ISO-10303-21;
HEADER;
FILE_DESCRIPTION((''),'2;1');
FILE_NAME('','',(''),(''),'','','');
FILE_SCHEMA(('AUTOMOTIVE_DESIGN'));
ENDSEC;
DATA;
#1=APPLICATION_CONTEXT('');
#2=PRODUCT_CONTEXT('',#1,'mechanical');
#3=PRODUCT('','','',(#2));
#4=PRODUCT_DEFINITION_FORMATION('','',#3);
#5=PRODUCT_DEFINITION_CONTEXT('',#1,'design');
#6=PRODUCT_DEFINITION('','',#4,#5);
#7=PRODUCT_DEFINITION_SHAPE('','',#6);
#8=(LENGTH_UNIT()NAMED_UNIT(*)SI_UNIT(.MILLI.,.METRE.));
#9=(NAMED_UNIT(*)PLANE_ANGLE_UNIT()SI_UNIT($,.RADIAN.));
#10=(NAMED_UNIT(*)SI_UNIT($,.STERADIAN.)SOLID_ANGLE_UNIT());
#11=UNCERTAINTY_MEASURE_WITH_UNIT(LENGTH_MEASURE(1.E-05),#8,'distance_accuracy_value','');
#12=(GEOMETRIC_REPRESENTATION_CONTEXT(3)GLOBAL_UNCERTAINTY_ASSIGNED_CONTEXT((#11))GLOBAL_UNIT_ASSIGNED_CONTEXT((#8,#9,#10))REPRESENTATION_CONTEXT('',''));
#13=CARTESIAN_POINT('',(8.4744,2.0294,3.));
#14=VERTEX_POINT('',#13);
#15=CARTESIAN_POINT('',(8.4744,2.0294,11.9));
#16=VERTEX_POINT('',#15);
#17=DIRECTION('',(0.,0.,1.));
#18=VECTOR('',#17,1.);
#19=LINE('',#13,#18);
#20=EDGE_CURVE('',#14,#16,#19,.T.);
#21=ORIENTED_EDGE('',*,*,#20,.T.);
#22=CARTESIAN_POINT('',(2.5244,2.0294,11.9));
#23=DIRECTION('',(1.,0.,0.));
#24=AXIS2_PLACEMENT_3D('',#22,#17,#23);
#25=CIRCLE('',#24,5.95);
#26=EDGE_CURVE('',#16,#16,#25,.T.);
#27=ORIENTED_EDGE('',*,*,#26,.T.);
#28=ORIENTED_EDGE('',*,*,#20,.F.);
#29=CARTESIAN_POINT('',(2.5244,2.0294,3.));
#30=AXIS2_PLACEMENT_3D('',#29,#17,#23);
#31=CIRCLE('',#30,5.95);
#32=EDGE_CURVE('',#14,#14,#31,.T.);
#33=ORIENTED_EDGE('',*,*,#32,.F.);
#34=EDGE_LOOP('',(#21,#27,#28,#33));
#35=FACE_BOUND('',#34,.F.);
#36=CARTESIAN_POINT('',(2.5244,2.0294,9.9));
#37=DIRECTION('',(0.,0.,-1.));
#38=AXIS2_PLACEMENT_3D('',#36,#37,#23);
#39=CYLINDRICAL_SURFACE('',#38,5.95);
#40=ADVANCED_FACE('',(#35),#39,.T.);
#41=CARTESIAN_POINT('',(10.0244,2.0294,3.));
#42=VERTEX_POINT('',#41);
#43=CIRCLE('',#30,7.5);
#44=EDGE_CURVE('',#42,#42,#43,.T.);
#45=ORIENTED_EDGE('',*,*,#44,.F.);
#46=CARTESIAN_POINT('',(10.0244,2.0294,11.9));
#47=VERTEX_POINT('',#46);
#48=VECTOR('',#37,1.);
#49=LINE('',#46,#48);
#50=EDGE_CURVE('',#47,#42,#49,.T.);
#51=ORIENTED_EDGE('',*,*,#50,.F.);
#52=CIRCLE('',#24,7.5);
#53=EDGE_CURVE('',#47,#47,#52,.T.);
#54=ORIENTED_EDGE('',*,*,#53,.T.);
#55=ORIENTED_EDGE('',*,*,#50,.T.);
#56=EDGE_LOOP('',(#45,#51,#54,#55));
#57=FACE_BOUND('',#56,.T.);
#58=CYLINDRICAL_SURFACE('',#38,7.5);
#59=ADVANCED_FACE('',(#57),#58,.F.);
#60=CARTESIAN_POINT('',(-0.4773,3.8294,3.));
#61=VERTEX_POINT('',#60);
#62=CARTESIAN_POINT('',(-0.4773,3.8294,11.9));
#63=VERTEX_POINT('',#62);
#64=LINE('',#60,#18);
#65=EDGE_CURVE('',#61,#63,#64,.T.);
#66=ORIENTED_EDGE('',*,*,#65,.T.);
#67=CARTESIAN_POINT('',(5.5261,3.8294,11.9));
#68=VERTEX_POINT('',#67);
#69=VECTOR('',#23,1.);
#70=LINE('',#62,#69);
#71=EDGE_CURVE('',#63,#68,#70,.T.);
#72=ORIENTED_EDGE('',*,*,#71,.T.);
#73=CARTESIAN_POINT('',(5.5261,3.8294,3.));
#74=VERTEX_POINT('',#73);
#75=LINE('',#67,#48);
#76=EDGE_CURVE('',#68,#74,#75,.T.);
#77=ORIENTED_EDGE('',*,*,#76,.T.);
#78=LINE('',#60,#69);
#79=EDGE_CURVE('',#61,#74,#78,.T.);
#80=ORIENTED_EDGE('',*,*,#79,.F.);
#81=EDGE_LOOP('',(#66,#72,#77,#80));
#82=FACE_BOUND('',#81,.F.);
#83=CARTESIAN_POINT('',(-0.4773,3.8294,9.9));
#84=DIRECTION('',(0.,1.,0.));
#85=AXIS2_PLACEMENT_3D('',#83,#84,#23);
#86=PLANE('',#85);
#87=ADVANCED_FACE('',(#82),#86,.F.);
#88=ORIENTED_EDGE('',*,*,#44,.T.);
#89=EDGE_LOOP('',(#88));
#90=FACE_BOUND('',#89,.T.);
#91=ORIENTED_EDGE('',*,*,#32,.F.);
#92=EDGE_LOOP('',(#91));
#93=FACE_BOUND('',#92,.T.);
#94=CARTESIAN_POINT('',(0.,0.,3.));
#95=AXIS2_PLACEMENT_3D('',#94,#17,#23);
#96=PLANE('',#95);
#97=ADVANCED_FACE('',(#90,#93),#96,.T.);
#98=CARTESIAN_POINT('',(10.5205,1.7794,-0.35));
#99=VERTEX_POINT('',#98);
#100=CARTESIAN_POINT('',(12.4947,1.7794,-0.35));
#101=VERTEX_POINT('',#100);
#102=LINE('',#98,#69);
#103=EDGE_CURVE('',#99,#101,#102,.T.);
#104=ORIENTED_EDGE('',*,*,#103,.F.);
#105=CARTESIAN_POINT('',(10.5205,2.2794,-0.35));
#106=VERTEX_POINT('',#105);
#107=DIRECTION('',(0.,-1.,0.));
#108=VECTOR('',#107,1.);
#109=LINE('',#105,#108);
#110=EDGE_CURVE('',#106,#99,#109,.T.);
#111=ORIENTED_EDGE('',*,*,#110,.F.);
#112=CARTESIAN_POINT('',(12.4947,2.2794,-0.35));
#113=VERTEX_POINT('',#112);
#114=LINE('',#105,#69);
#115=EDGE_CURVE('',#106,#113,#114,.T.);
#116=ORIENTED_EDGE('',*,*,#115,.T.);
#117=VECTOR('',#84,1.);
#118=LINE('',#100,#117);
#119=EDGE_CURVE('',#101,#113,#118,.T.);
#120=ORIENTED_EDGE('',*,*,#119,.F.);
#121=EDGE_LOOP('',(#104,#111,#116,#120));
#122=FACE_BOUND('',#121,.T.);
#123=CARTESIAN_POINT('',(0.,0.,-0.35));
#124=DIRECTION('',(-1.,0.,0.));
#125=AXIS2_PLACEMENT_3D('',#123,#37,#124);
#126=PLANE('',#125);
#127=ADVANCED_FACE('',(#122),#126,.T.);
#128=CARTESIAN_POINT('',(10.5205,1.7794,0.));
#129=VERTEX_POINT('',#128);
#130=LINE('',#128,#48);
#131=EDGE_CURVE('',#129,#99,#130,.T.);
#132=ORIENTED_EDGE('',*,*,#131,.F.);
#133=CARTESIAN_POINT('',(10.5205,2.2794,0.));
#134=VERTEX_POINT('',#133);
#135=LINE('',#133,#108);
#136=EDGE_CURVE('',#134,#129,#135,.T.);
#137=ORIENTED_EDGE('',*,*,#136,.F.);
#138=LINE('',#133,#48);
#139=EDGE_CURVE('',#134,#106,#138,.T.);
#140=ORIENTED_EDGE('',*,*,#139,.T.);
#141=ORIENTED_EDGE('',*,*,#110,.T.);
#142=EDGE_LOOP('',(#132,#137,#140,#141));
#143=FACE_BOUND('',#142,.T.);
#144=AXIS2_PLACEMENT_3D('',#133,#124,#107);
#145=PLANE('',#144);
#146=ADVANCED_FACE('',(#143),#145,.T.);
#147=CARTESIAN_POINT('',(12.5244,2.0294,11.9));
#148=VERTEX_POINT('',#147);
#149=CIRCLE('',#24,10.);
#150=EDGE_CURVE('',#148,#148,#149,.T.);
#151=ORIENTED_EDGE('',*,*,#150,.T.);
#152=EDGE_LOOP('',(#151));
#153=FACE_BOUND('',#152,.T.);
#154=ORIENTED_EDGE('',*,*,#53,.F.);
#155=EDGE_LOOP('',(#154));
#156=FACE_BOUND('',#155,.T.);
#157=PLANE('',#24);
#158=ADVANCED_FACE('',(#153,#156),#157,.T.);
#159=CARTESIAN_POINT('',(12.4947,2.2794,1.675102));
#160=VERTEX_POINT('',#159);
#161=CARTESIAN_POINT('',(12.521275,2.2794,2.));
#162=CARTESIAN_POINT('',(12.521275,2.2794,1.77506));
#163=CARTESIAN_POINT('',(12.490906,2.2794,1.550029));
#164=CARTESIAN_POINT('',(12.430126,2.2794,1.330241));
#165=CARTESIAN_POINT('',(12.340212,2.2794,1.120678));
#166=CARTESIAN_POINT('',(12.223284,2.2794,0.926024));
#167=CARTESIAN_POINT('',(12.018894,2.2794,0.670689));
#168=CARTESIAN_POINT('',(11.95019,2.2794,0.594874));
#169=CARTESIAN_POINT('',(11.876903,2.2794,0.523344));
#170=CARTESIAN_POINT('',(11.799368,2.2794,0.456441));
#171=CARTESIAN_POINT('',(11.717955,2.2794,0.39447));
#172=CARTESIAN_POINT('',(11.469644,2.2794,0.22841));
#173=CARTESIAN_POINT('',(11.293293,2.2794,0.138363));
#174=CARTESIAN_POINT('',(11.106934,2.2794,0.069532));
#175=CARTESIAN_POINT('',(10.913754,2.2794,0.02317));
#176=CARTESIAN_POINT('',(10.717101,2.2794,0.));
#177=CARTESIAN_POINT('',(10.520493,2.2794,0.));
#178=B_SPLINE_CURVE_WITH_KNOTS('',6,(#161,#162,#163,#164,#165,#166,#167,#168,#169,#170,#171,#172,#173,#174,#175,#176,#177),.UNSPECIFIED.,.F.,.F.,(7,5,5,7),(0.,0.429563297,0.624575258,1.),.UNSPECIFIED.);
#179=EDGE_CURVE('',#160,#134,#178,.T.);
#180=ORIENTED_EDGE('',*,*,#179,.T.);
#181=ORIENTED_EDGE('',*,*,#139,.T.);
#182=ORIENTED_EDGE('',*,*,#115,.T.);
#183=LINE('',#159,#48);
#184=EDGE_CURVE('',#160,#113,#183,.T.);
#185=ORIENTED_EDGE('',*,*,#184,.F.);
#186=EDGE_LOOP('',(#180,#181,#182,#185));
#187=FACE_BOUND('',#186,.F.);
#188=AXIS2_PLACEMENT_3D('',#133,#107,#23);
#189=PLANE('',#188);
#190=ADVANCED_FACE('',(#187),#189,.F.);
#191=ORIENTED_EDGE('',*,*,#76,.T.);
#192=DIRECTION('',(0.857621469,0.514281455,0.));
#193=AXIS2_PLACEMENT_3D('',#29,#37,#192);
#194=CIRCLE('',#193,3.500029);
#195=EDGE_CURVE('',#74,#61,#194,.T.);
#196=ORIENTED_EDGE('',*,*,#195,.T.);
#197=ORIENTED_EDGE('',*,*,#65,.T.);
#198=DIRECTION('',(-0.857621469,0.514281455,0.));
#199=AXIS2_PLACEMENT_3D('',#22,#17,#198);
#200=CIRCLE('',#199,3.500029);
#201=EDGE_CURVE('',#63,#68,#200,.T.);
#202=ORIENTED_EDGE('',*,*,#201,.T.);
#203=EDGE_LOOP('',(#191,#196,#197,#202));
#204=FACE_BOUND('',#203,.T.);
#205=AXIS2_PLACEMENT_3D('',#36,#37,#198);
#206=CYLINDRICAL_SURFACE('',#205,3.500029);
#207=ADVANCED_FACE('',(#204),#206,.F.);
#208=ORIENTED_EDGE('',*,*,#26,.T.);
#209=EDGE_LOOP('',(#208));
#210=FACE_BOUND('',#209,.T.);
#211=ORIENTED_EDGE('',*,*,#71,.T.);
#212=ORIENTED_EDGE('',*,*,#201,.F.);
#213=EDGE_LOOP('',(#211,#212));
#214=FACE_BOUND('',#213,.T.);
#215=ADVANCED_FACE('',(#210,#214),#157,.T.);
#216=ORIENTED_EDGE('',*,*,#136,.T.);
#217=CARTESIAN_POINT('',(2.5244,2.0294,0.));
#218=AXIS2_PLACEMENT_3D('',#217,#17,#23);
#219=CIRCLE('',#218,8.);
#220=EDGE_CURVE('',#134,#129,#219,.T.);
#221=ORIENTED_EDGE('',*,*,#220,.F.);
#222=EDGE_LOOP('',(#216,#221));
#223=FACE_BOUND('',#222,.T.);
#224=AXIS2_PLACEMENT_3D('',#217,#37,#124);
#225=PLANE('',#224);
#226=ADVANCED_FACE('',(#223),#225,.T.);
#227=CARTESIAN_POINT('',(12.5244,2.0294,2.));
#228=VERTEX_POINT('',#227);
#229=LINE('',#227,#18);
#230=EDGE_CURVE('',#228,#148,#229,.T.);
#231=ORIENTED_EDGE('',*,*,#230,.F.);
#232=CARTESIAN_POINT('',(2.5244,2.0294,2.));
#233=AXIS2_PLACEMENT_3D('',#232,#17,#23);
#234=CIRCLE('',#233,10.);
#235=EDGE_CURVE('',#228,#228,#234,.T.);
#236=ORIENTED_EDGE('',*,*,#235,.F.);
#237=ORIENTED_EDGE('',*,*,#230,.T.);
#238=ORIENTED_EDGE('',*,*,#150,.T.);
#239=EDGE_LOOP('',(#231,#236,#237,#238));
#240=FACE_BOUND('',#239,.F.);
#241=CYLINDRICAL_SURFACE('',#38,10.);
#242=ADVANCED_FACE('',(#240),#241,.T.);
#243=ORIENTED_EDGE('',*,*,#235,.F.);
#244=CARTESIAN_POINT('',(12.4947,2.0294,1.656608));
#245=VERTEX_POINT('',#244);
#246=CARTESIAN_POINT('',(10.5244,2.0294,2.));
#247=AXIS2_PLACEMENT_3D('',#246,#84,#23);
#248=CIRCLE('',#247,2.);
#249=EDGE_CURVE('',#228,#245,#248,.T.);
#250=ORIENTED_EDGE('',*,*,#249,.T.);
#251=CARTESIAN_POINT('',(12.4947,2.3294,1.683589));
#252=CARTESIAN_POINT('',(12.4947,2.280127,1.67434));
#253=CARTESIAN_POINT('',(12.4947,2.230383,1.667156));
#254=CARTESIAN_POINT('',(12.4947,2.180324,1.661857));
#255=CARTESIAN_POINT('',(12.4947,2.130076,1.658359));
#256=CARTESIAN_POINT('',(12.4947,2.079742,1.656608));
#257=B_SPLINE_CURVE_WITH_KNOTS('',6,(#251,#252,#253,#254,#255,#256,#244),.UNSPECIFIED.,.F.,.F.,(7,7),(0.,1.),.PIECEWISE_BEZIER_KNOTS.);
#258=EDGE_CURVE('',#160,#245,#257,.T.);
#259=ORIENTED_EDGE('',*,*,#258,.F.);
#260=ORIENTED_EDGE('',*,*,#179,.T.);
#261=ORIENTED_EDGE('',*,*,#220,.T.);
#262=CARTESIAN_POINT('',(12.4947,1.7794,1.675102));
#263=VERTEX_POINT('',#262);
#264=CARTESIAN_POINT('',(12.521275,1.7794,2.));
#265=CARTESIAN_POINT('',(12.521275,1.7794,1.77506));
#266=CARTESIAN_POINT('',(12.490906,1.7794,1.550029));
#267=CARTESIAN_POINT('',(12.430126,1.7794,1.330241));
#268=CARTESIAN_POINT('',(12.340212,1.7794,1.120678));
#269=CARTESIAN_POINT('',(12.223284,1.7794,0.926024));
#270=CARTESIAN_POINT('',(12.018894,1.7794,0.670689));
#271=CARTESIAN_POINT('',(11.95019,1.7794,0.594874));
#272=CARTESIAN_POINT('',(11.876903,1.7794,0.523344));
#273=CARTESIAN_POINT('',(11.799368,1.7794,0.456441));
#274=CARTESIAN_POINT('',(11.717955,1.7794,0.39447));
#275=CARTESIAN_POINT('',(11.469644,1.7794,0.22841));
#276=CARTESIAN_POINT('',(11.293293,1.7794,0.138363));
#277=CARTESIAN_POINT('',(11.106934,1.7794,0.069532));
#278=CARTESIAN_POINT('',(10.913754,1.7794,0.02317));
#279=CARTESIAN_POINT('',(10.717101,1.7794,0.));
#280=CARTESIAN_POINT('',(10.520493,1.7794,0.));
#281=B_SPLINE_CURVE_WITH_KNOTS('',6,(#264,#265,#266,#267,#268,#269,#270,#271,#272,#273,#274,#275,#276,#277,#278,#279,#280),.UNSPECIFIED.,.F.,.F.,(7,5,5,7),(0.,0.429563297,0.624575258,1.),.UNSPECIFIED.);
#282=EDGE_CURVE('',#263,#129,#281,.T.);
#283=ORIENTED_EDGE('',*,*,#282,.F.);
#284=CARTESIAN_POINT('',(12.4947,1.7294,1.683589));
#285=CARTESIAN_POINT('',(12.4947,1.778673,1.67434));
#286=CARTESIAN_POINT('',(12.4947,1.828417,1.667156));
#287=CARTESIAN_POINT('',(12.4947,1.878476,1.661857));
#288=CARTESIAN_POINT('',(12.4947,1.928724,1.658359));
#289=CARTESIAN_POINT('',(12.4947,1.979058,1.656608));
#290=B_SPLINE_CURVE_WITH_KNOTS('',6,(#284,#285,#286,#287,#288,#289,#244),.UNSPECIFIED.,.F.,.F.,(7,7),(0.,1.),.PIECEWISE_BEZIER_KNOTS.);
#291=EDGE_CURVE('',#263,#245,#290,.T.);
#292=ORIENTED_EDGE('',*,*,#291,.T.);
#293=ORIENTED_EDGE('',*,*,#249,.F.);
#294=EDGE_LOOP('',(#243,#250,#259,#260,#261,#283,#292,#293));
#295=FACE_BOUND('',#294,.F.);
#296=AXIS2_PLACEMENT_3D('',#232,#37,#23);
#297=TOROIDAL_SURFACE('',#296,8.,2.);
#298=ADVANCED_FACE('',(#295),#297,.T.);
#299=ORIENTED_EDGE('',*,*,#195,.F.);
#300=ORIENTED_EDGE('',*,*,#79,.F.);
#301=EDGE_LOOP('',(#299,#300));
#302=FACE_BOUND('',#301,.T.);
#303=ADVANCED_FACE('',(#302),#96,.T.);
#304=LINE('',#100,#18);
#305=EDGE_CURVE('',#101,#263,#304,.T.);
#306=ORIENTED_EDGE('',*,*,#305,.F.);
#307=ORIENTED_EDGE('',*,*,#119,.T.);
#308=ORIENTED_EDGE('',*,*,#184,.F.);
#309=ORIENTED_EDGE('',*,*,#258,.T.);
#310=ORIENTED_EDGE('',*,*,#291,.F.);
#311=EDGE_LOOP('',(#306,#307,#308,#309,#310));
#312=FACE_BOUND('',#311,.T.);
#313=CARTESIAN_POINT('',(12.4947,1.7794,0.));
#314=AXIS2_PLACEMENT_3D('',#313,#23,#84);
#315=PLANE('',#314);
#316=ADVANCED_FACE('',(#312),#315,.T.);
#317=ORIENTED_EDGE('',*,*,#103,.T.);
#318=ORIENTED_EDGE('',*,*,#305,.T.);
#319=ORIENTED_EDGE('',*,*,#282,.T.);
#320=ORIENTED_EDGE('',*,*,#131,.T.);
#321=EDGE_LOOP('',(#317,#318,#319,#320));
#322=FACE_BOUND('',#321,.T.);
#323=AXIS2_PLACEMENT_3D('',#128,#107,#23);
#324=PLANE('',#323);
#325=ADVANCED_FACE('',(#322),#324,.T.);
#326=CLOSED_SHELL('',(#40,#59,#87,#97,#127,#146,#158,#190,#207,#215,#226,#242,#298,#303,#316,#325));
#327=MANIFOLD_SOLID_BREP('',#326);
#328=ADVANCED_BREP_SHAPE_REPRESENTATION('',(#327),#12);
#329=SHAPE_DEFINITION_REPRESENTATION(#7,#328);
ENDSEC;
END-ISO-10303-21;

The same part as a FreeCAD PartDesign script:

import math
import FreeCAD as App
import Part
import Sketcher
Q = App.Units.Quantity


def edges_at(feature, points):
    """Names of the edges that pass closest to the given points."""
    edges = feature.Shape.Edges
    near = lambda p: min(range(len(edges)), key=lambda i: edges[i].distToShape(Part.Vertex(*p))[0])
    return sorted({f"Edge{near(p) + 1}" for p in points})

doc = App.newDocument("Part")
body = doc.addObject("PartDesign::Body", "Body")

# Sketch on XY plane
sketch1 = body.newObject("Sketcher::SketchObject", "Sketch")
sketch1.AttachmentSupport = (doc.getObject("XY_Plane"), [""])
sketch1.MapMode = "FlatFace"
sketch1.addGeometry(Part.Circle(App.Vector(3, 2, 0), App.Vector(0, 0, 1), 10), False)
sketch1.addConstraint([
    Sketcher.Constraint("Diameter", 0, Q("20 mm")),
    Sketcher.Constraint("DistanceX", -1, 1, 0, 3, Q("2.5244 mm")),
    Sketcher.Constraint("DistanceY", -1, 1, 0, 3, Q("2.0294 mm")),
])
pad1 = body.newObject("PartDesign::Pad", "Pad")
pad1.Profile = sketch1
pad1.Length = 3

# Sketch on XY plane
sketch2 = body.newObject("Sketcher::SketchObject", "Sketch001")
sketch2.AttachmentSupport = (doc.getObject("XY_Plane"), [""])
sketch2.MapMode = "FlatFace"
sketch2.AttachmentOffset = App.Placement(App.Vector(0, 0, 3), App.Rotation())
sketch2.addGeometry([
    Part.Circle(App.Vector(3, 2, 0), App.Vector(0, 0, 1), 10),
    Part.Circle(App.Vector(3, 2, 0), App.Vector(0, 0, 1), 8),
], False)
sketch2.addConstraint([
    Sketcher.Constraint("Coincident", 1, 3, 0, 3),
    Sketcher.Constraint("Diameter", 1, Q("15 mm")),
    Sketcher.Constraint("Diameter", 0, Q("20 mm")),
    Sketcher.Constraint("DistanceX", -1, 1, 0, 3, Q("2.5244 mm")),
    Sketcher.Constraint("DistanceY", -1, 1, 0, 3, Q("2.0294 mm")),
])
pad2 = body.newObject("PartDesign::Pad", "Pad001")
pad2.Profile = sketch2
pad2.Length = 6.9

# Sketch on XY plane
sketch3 = body.newObject("Sketcher::SketchObject", "Sketch002")
sketch3.AttachmentSupport = (doc.getObject("XY_Plane"), [""])
sketch3.MapMode = "FlatFace"
sketch3.AttachmentOffset = App.Placement(App.Vector(0, 0, 3), App.Rotation())
sketch3.addGeometry([
    Part.Circle(App.Vector(2.5, 2, 0), App.Vector(0, 0, 1), 6),
    Part.ArcOfCircle(Part.Circle(App.Vector(2.5, 2, 0), App.Vector(0, 0, 1), 3.5), math.radians(149), math.radians(391)),
    Part.LineSegment(App.Vector(-0.5, 3.8, 0), App.Vector(5.5, 3.8, 0)),
], False)
sketch3.addConstraint([
    Sketcher.Constraint("Coincident", 1, 1, 2, 1),
    Sketcher.Constraint("Coincident", 2, 2, 1, 2),
    Sketcher.Constraint("Horizontal", 2),
    Sketcher.Constraint("Coincident", 1, 3, 0, 3),
    Sketcher.Constraint("Diameter", 0, Q("11.9 mm")),
    Sketcher.Constraint("Radius", 1, Q("3.5 mm")),
    Sketcher.Constraint("DistanceY", 0, 3, 1, 1, Q("1.8 mm")),
    Sketcher.Constraint("DistanceX", -1, 1, 2, 2, Q("5.526 mm")),
    Sketcher.Constraint("DistanceY", -1, 1, 0, 3, Q("2.0294 mm")),
])
pad3 = body.newObject("PartDesign::Pad", "Pad002")
pad3.Profile = sketch3
pad3.Length = 6.9
doc.recompute()

fillet = body.newObject("PartDesign::Fillet", "Fillet")
fillet.Base = (pad3, edges_at(pad3, [(-7.476, 2.029, 0)]))
fillet.Radius = 2

# Sketch on XY plane
sketch4 = body.newObject("Sketcher::SketchObject", "Sketch003")
sketch4.AttachmentSupport = (doc.getObject("XY_Plane"), [""])
sketch4.MapMode = "FlatFace"
sketch4.addGeometry([
    Part.ArcOfCircle(Part.Circle(App.Vector(2.52, 2.03, 0), App.Vector(0, 0, 1), 8), math.radians(-1.79), math.radians(1.79)),
    Part.LineSegment(App.Vector(10.52, 2.28, 0), App.Vector(12.49, 2.28, 0)),
    Part.LineSegment(App.Vector(12.49, 2.28, 0), App.Vector(12.49, 1.78, 0)),
    Part.LineSegment(App.Vector(12.49, 1.78, 0), App.Vector(10.52, 1.78, 0)),
], False)
sketch4.addConstraint([
    Sketcher.Constraint("Coincident", 0, 2, 1, 1),
    Sketcher.Constraint("Coincident", 1, 2, 2, 1),
    Sketcher.Constraint("Coincident", 2, 2, 3, 1),
    Sketcher.Constraint("Coincident", 3, 2, 0, 1),
    Sketcher.Constraint("Horizontal", 1),
    Sketcher.Constraint("Vertical", 2),
    Sketcher.Constraint("Horizontal", 3),
    Sketcher.Constraint("Vertical", 0, 2, 3, 2),
    Sketcher.Constraint("DistanceY", 2, 2, 2, 1, Q("0.5 mm")),
    Sketcher.Constraint("Radius", 0, Q("8 mm")),
    Sketcher.Constraint("DistanceX", 1, 1, 1, 2, Q("1.9742 mm")),
    Sketcher.Constraint("DistanceX", -1, 1, 0, 3, Q("2.5244 mm")),
    Sketcher.Constraint("DistanceY", -1, 1, 0, 3, Q("2.0294 mm")),
])
pad4 = body.newObject("PartDesign::Pad", "Pad003")
pad4.Profile = sketch4
pad4.Length = 1.85

# Sketch on XY plane
sketch5 = body.newObject("Sketcher::SketchObject", "Sketch004")
sketch5.AttachmentSupport = (doc.getObject("XY_Plane"), [""])
sketch5.MapMode = "FlatFace"
sketch5.addGeometry([
    Part.LineSegment(App.Vector(10.52, 1.78, 0), App.Vector(10.52, 2.28, 0)),
    Part.LineSegment(App.Vector(10.52, 2.28, 0), App.Vector(12.49, 2.28, 0)),
    Part.LineSegment(App.Vector(12.49, 2.28, 0), App.Vector(12.49, 1.78, 0)),
    Part.LineSegment(App.Vector(12.49, 1.78, 0), App.Vector(10.52, 1.78, 0)),
], False)
sketch5.addConstraint([
    Sketcher.Constraint("Coincident", 0, 2, 1, 1),
    Sketcher.Constraint("Coincident", 1, 2, 2, 1),
    Sketcher.Constraint("Coincident", 2, 2, 3, 1),
    Sketcher.Constraint("Coincident", 3, 2, 0, 1),
    Sketcher.Constraint("Vertical", 0),
    Sketcher.Constraint("Horizontal", 1),
    Sketcher.Constraint("Vertical", 2),
    Sketcher.Constraint("Horizontal", 3),
    Sketcher.Constraint("DistanceY", 0, 1, 0, 2, Q("0.5 mm")),
    Sketcher.Constraint("DistanceX", 1, 1, 1, 2, Q("1.9742 mm")),
    Sketcher.Constraint("DistanceX", -1, 1, 0, 2, Q("10.5205 mm")),
    Sketcher.Constraint("DistanceY", -1, 1, 0, 2, Q("2.2794 mm")),
])
pad5 = body.newObject("PartDesign::Pad", "Pad004")
pad5.Profile = sketch5
pad5.Length = 0.35
pad5.Reversed = True

# Sketch on XY plane
sketch6 = body.newObject("Sketcher::SketchObject", "Sketch005")
sketch6.AttachmentSupport = (doc.getObject("XY_Plane"), [""])
sketch6.MapMode = "FlatFace"
sketch6.AttachmentOffset = App.Placement(App.Vector(0, 0, 9.9), App.Rotation())
sketch6.addGeometry([
    Part.Circle(App.Vector(2.5, 2, 0), App.Vector(0, 0, 1), 6),
    Part.ArcOfCircle(Part.Circle(App.Vector(2.5, 2, 0), App.Vector(0, 0, 1), 3.5), math.radians(149), math.radians(391)),
    Part.LineSegment(App.Vector(-0.5, 3.8, 0), App.Vector(5.5, 3.8, 0)),
], False)
sketch6.addConstraint([
    Sketcher.Constraint("Coincident", 1, 1, 2, 1),
    Sketcher.Constraint("Coincident", 2, 2, 1, 2),
    Sketcher.Constraint("Horizontal", 2),
    Sketcher.Constraint("Coincident", 1, 3, 0, 3),
    Sketcher.Constraint("Diameter", 0, Q("11.9 mm")),
    Sketcher.Constraint("Radius", 1, Q("3.5 mm")),
    Sketcher.Constraint("DistanceY", 0, 3, 1, 1, Q("1.8 mm")),
    Sketcher.Constraint("DistanceX", -1, 1, 2, 2, Q("5.526 mm")),
    Sketcher.Constraint("DistanceY", -1, 1, 0, 3, Q("2.0294 mm")),
])
pad6 = body.newObject("PartDesign::Pad", "Pad005")
pad6.Profile = sketch6
pad6.Length = 2

# Sketch on XY plane
sketch7 = body.newObject("Sketcher::SketchObject", "Sketch006")
sketch7.AttachmentSupport = (doc.getObject("XY_Plane"), [""])
sketch7.MapMode = "FlatFace"
sketch7.AttachmentOffset = App.Placement(App.Vector(0, 0, 9.9), App.Rotation())
sketch7.addGeometry([
    Part.Circle(App.Vector(3, 2, 0), App.Vector(0, 0, 1), 10),
    Part.Circle(App.Vector(3, 2, 0), App.Vector(0, 0, 1), 8),
], False)
sketch7.addConstraint([
    Sketcher.Constraint("Coincident", 1, 3, 0, 3),
    Sketcher.Constraint("Diameter", 0, Q("20 mm")),
    Sketcher.Constraint("Diameter", 1, Q("15 mm")),
    Sketcher.Constraint("DistanceX", -1, 1, 0, 3, Q("2.5244 mm")),
    Sketcher.Constraint("DistanceY", -1, 1, 0, 3, Q("2.0294 mm")),
])
pad7 = body.newObject("PartDesign::Pad", "Pad006")
pad7.Profile = sketch7
pad7.Length = 2

doc.recompute()
